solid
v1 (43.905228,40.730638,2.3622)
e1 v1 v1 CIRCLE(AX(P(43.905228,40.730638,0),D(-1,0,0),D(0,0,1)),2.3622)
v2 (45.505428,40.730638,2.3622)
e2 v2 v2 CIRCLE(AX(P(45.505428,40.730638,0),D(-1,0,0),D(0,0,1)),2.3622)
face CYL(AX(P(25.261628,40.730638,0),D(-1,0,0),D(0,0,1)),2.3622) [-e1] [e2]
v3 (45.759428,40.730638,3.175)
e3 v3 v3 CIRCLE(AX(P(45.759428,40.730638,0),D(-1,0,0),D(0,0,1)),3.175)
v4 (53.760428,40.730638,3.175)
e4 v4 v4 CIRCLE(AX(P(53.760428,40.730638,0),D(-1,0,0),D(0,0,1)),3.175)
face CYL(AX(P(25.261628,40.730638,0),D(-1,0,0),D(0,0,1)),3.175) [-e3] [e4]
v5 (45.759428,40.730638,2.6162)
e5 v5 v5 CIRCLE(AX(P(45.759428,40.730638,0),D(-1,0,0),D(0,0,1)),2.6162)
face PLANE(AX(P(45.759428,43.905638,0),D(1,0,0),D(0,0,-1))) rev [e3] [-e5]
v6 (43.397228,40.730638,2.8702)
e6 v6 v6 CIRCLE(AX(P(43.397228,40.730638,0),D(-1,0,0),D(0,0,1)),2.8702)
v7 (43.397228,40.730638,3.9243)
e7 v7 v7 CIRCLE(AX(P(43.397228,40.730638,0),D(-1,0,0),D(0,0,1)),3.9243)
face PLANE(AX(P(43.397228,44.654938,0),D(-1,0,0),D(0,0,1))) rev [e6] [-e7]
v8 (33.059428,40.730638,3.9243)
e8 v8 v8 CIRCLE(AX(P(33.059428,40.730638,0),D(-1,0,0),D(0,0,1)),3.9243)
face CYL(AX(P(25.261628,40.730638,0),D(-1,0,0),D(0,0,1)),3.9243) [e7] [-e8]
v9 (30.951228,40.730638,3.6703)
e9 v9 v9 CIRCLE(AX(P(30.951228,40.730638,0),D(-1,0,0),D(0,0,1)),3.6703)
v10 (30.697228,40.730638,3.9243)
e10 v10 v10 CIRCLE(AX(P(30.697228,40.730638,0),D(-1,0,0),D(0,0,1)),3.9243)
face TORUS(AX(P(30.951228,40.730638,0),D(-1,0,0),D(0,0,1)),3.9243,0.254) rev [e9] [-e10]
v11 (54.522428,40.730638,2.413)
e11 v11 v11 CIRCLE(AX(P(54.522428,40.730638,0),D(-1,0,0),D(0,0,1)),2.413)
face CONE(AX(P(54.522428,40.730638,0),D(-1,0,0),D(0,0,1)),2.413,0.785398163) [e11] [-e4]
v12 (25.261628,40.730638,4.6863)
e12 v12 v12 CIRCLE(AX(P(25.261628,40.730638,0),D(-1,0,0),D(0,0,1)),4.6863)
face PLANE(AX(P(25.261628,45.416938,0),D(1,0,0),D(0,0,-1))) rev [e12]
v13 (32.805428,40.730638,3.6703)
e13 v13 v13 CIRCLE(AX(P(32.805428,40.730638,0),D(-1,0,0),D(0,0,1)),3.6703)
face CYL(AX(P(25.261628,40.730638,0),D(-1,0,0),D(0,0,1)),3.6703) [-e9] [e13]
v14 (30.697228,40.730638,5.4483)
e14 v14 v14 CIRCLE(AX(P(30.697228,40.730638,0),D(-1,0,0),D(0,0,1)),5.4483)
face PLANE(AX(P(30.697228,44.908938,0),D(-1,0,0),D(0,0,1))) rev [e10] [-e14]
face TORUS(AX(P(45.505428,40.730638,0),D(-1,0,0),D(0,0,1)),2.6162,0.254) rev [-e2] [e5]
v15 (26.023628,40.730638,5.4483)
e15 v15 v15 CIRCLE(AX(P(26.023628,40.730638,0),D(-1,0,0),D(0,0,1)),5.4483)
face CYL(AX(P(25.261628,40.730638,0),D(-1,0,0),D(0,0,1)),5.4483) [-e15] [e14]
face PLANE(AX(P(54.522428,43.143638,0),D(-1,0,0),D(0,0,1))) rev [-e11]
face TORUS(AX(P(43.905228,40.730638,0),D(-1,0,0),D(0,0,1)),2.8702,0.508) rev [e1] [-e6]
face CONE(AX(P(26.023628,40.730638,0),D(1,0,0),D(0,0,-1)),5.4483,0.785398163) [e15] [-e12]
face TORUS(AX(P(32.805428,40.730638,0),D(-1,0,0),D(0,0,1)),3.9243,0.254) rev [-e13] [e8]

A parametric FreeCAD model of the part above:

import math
import FreeCAD as App
import Part
import Sketcher
from FreeCAD import Vector
Q = App.Units.Quantity

doc = App.newDocument("Part")
body = doc.addObject("PartDesign::Body", "Body")

# Sketch on XY plane
sketch1 = doc.addObject("Sketcher::SketchObject", "Sketch")
body.addObject(sketch1)
sketch1.AttachmentSupport = (doc.XY_Plane, [""])
sketch1.MapMode = "FlatFace"
sketch1.addGeometry([
    Part.LineSegment(Vector(30.697228, 46.178938, 0), Vector(26.023628, 46.178938, 0)),  # 0
    Part.LineSegment(Vector(26.023628, 46.178938, 0), Vector(25.261628, 45.416938, 0)),  # 1
    Part.LineSegment(Vector(25.261628, 45.416938, 0), Vector(25.261628, 40.730638, 0)),  # 2
    Part.LineSegment(Vector(25.261628, 40.730638, 0), Vector(54.522428, 40.730638, 0)),  # 3
    Part.LineSegment(Vector(54.522428, 40.730638, 0), Vector(54.522428, 43.143638, 0)),  # 4
    Part.LineSegment(Vector(54.522428, 43.143638, 0), Vector(53.760428, 43.905638, 0)),  # 5
    Part.LineSegment(Vector(53.760428, 43.905638, 0), Vector(45.759428, 43.905638, 0)),  # 6
    Part.LineSegment(Vector(45.759428, 43.905638, 0), Vector(45.759428, 43.346838, 0)),  # 7
    Part.ArcOfCircle(Part.Circle(Vector(45.505428, 43.346838, 0), Vector(0, 0, 1), 0.254), math.radians(-90), math.radians(0)),  # 8
    Part.LineSegment(Vector(45.505428, 43.092838, 0), Vector(43.905228, 43.092838, 0)),  # 9
    Part.ArcOfCircle(Part.Circle(Vector(43.905228, 43.600838, 0), Vector(0, 0, 1), 0.508), math.radians(180), math.radians(270)),  # 10
    Part.LineSegment(Vector(43.397228, 43.600838, 0), Vector(43.397228, 44.654938, 0)),  # 11
    Part.LineSegment(Vector(43.397228, 44.654938, 0), Vector(33.059428, 44.654938, 0)),  # 12
    Part.ArcOfCircle(Part.Circle(Vector(32.805428, 44.654938, 0), Vector(0, 0, 1), 0.254), math.radians(-90), math.radians(0)),  # 13
    Part.LineSegment(Vector(32.805428, 44.400938, 0), Vector(30.951228, 44.400938, 0)),  # 14
    Part.ArcOfCircle(Part.Circle(Vector(30.951228, 44.654938, 0), Vector(0, 0, 1), 0.254), math.radians(180), math.radians(270)),  # 15
    Part.LineSegment(Vector(30.697228, 44.654938, 0), Vector(30.697228, 46.178938, 0)),  # 16
], False)
sketch1.addGeometry(Part.LineSegment(Vector(25.261628, 40.730638, 0), Vector(54.522428, 40.730638, 0)), True)  # axis
sketch1.addConstraint([
    Sketcher.Constraint("Coincident", 0, 2, 1, 1),
    Sketcher.Constraint("Coincident", 1, 2, 2, 1),
    Sketcher.Constraint("Coincident", 2, 2, 3, 1),
    Sketcher.Constraint("Coincident", 3, 2, 4, 1),
    Sketcher.Constraint("Coincident", 4, 2, 5, 1),
    Sketcher.Constraint("Coincident", 5, 2, 6, 1),
    Sketcher.Constraint("Coincident", 6, 2, 7, 1),
    Sketcher.Constraint("Tangent", 7, 2, 8, 2),
    Sketcher.Constraint("Tangent", 8, 1, 9, 1),
    Sketcher.Constraint("Tangent", 9, 2, 10, 2),
    Sketcher.Constraint("Tangent", 10, 1, 11, 1),
    Sketcher.Constraint("Coincident", 11, 2, 12, 1),
    Sketcher.Constraint("Coincident", 12, 2, 13, 2),
    Sketcher.Constraint("Tangent", 13, 1, 14, 1),
    Sketcher.Constraint("Tangent", 14, 2, 15, 2),
    Sketcher.Constraint("Tangent", 15, 1, 16, 1),
    Sketcher.Constraint("Coincident", 16, 2, 0, 1),
    Sketcher.Constraint("Horizontal", 0),
    Sketcher.Constraint("Vertical", 2),
    Sketcher.Constraint("Horizontal", 3),
    Sketcher.Constraint("Vertical", 4),
    Sketcher.Constraint("Horizontal", 6),
    Sketcher.Constraint("Vertical", 7),
    Sketcher.Constraint("Horizontal", 9),
    Sketcher.Constraint("Vertical", 11),
    Sketcher.Constraint("Horizontal", 12),
    Sketcher.Constraint("Horizontal", 14),
    Sketcher.Constraint("Vertical", 16),
    Sketcher.Constraint("Horizontal", 17),
    Sketcher.Constraint("Coincident", 17, 1, 2, 2),
    Sketcher.Constraint("Equal", 8, 13),
    Sketcher.Constraint("Equal", 13, 15),
    Sketcher.Constraint("Perpendicular", 1, 5),
    Sketcher.Constraint("Horizontal", 15, 3, 11, 2),
    Sketcher.Constraint("Vertical", 4, 2, 17, 2),
    Sketcher.Constraint("Equal", 1, 5),
    Sketcher.Constraint("Radius", 8, Q("0.01 in")),
    Sketcher.Constraint("Radius", 10, Q("0.02 in")),
    Sketcher.Constraint("Angle", 1, Q("-135 deg")),
    Sketcher.Constraint("DistanceY", 16, 1, 16, 2, Q("0.06 in")),
    Sketcher.Constraint("DistanceX", 13, 3, 8, 3, Q("0.5 in")),
    Sketcher.Constraint("DistanceX", 0, 2, 0, 1, Q("0.184 in")),
    Sketcher.Constraint("DistanceX", 3, 1, 3, 2, Q("1.152 in")),
    Sketcher.Constraint("DistanceX", 6, 2, 6, 1, Q("0.315 in")),
    Sketcher.Constraint("DistanceX", 9, 2, 9, 1, Q("0.063 in")),
    Sketcher.Constraint("DistanceX", 14, 2, 14, 1, Q("0.073 in")),
    Sketcher.Constraint("DistanceY", 4, 1, 4, 2, Q("0.095 in")),
    Sketcher.Constraint("DistanceY", 7, 2, 7, 1, Q("0.022 in")),
    Sketcher.Constraint("DistanceY", 2, 2, 2, 1, Q("0.1845 in")),
    Sketcher.Constraint("DistanceY", -1, 1, 8, 3, Q("43.346838 mm")),
    Sketcher.Constraint("DistanceX", -1, 1, 8, 3, Q("45.505428 mm")),
])
revolution = doc.addObject("PartDesign::Revolution", "Revolution")
body.addObject(revolution)
revolution.Profile = sketch1
revolution.ReferenceAxis = (sketch1, ["Axis0"])
revolution.Angle = 360

doc.recompute()
